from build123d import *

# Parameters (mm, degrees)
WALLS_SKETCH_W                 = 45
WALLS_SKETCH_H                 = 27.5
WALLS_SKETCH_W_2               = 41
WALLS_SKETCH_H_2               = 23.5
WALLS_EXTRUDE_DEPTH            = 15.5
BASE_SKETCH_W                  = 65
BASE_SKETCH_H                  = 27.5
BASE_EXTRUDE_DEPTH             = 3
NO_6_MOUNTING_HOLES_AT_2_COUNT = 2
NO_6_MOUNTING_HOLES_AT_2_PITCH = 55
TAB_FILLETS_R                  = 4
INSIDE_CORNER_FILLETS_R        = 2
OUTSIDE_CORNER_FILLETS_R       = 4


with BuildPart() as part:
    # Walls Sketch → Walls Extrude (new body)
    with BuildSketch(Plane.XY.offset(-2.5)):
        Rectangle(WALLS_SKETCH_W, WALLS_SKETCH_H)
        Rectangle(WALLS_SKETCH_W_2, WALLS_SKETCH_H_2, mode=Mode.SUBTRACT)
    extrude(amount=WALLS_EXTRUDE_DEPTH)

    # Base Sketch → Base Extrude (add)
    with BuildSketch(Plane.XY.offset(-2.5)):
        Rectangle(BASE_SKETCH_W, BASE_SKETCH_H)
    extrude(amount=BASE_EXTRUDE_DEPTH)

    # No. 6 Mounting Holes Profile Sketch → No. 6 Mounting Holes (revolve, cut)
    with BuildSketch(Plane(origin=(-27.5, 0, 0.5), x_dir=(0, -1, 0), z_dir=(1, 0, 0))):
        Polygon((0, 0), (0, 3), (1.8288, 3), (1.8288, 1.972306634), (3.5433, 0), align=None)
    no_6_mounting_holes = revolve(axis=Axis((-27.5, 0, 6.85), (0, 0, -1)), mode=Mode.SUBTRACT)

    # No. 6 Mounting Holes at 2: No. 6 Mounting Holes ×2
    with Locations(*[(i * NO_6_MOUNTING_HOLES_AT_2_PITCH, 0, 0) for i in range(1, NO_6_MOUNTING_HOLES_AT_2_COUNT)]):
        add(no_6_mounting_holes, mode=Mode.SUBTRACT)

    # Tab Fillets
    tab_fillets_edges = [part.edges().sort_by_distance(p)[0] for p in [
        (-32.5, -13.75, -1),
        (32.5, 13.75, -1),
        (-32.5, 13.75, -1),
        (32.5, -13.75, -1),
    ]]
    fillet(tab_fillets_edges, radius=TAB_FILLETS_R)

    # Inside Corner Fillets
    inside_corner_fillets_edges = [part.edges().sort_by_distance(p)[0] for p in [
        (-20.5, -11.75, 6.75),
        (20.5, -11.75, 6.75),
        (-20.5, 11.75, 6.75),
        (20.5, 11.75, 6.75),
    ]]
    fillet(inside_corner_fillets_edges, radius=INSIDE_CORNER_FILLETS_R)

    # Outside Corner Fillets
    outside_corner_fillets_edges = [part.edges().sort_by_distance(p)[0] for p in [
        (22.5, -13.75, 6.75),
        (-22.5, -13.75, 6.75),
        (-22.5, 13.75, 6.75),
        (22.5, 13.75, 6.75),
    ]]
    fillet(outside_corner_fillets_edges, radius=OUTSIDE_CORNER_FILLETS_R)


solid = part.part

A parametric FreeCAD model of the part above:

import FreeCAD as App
import Part
import Sketcher
Q = App.Units.Quantity


def edges_at(feature, points):
    """Names of the edges that pass closest to the given points."""
    edges = feature.Shape.Edges
    near = lambda p: min(range(len(edges)), key=lambda i: edges[i].distToShape(Part.Vertex(*p))[0])
    return sorted({f"Edge{near(p) + 1}" for p in points})

doc = App.newDocument("Part")
params = doc.addObject("Spreadsheet::Sheet", "Params")
for row, (alias, value) in enumerate([
    ("sketch1_width", "45 mm"),
    ("sketch1_width2", "41 mm"),
    ("sketch1_height", "27.5 mm"),
    ("sketch1_height2", "23.5 mm"),
    ("pad1_length", "15.5 mm"),
    ("sketch2_width", "65 mm"),
    ("sketch2_height", "27.5 mm"),
    ("pad2_length", "3 mm"),
    ("sketch3_height", "3 mm"),
    ("groove_angle", "360 deg"),
    ("linearpattern_pitch", "55 mm"),
    ("fillet_radius", "4 mm"),
    ("fillet2_radius", "2 mm"),
    ("fillet3_radius", "4 mm"),
], start=1):
    params.set(f"A{row}", alias)
    params.set(f"B{row}", "=" + value)
    params.setAlias(f"B{row}", alias)

body = doc.addObject("PartDesign::Body", "Body")

# Sketch on XY plane
sketch1 = doc.addObject("Sketcher::SketchObject", "Sketch")
body.addObject(sketch1)
sketch1.AttachmentSupport = (doc.XY_Plane, [""])
sketch1.MapMode = "FlatFace"
sketch1.AttachmentOffset = App.Placement(App.Vector(0, 0, -2.5), App.Rotation())
sketch1.addGeometry([
    Part.LineSegment(App.Vector(-22, 14, 0), App.Vector(-22, -14, 0)),  # 0
    Part.LineSegment(App.Vector(-22, -14, 0), App.Vector(22, -14, 0)),  # 1
    Part.LineSegment(App.Vector(22, -14, 0), App.Vector(22, 14, 0)),  # 2
    Part.LineSegment(App.Vector(22, 14, 0), App.Vector(-22, 14, 0)),  # 3
    Part.LineSegment(App.Vector(20, -12, 0), App.Vector(-20, -12, 0)),  # 4
    Part.LineSegment(App.Vector(-20, -12, 0), App.Vector(-20, 12, 0)),  # 5
    Part.LineSegment(App.Vector(-20, 12, 0), App.Vector(20, 12, 0)),  # 6
    Part.LineSegment(App.Vector(20, 12, 0), App.Vector(20, -12, 0)),  # 7
], False)
sketch1.addConstraint([
    Sketcher.Constraint("Coincident", 0, 2, 1, 1),
    Sketcher.Constraint("Coincident", 1, 2, 2, 1),
    Sketcher.Constraint("Coincident", 2, 2, 3, 1),
    Sketcher.Constraint("Coincident", 3, 2, 0, 1),
    Sketcher.Constraint("Coincident", 4, 2, 5, 1),
    Sketcher.Constraint("Coincident", 5, 2, 6, 1),
    Sketcher.Constraint("Coincident", 6, 2, 7, 1),
    Sketcher.Constraint("Coincident", 7, 2, 4, 1),
    Sketcher.Constraint("Vertical", 0),
    Sketcher.Constraint("Horizontal", 1),
    Sketcher.Constraint("Vertical", 2),
    Sketcher.Constraint("Horizontal", 3),
    Sketcher.Constraint("Horizontal", 4),
    Sketcher.Constraint("Vertical", 5),
    Sketcher.Constraint("Horizontal", 6),
    Sketcher.Constraint("Vertical", 7),
    Sketcher.Constraint("Symmetric", 0, 2, 2, 2, -1, 1),
    Sketcher.Constraint("Symmetric", 4, 2, 6, 2, -1, 1),
    Sketcher.Constraint("DistanceX", 1, 1, 1, 2, 45.0),
    Sketcher.Constraint("DistanceX", 4, 2, 4, 1, 41.0),
    Sketcher.Constraint("DistanceY", 0, 2, 0, 1, 27.5),
    Sketcher.Constraint("DistanceY", 5, 1, 5, 2, 23.5),
])
sketch1.setExpression("Constraints[18]", "Params.sketch1_width")
sketch1.setExpression("Constraints[19]", "Params.sketch1_width2")
sketch1.setExpression("Constraints[20]", "Params.sketch1_height")
sketch1.setExpression("Constraints[21]", "Params.sketch1_height2")
pad1 = doc.addObject("PartDesign::Pad", "Pad")
body.addObject(pad1)
pad1.Profile = sketch1
pad1.setExpression("Length", "Params.pad1_length")

# Sketch on XY plane
sketch2 = doc.addObject("Sketcher::SketchObject", "Sketch001")
body.addObject(sketch2)
sketch2.AttachmentSupport = (doc.XY_Plane, [""])
sketch2.MapMode = "FlatFace"
sketch2.AttachmentOffset = App.Placement(App.Vector(0, 0, -2.5), App.Rotation())
sketch2.addGeometry([
    Part.LineSegment(App.Vector(-32, 14, 0), App.Vector(-32, -14, 0)),
    Part.LineSegment(App.Vector(-32, -14, 0), App.Vector(32, -14, 0)),
    Part.LineSegment(App.Vector(32, -14, 0), App.Vector(32, 14, 0)),
    Part.LineSegment(App.Vector(32, 14, 0), App.Vector(-32, 14, 0)),
], False)
sketch2.addConstraint([
    Sketcher.Constraint("Coincident", 0, 2, 1, 1),
    Sketcher.Constraint("Coincident", 1, 2, 2, 1),
    Sketcher.Constraint("Coincident", 2, 2, 3, 1),
    Sketcher.Constraint("Coincident", 3, 2, 0, 1),
    Sketcher.Constraint("Vertical", 0),
    Sketcher.Constraint("Horizontal", 1),
    Sketcher.Constraint("Vertical", 2),
    Sketcher.Constraint("Horizontal", 3),
    Sketcher.Constraint("Symmetric", 0, 2, 2, 2, -1, 1),
    Sketcher.Constraint("DistanceX", 1, 1, 1, 2, 65.0),
    Sketcher.Constraint("DistanceY", 0, 2, 0, 1, 27.5),
])
sketch2.setExpression("Constraints[9]", "Params.sketch2_width")
sketch2.setExpression("Constraints[10]", "Params.sketch2_height")
pad2 = doc.addObject("PartDesign::Pad", "Pad001")
body.addObject(pad2)
pad2.Profile = sketch2
pad2.setExpression("Length", "Params.pad2_length")

# Sketch on YZ plane
sketch3 = doc.addObject("Sketcher::SketchObject", "Sketch002")
body.addObject(sketch3)
sketch3.AttachmentSupport = (doc.YZ_Plane, [""])
sketch3.MapMode = "FlatFace"
sketch3.AttachmentOffset = App.Placement(App.Vector(0, 0, -27.5), App.Rotation())
sketch3.addGeometry([
    Part.LineSegment(App.Vector(0, -2.5, 0), App.Vector(0, 0.5, 0)),  # 0
    Part.LineSegment(App.Vector(0, 0.5, 0), App.Vector(-3.5, 0.5, 0)),  # 1
    Part.LineSegment(App.Vector(-3.5, 0.5, 0), App.Vector(-1.8, -1.5, 0)),  # 2
    Part.LineSegment(App.Vector(-1.8, -1.5, 0), App.Vector(-1.8, -2.5, 0)),  # 3
    Part.LineSegment(App.Vector(-1.8, -2.5, 0), App.Vector(0, -2.5, 0)),  # 4
], False)
sketch3.addConstraint([
    Sketcher.Constraint("Coincident", 0, 2, 1, 1),
    Sketcher.Constraint("Coincident", 1, 2, 2, 1),
    Sketcher.Constraint("Coincident", 2, 2, 3, 1),
    Sketcher.Constraint("Coincident", 3, 2, 4, 1),
    Sketcher.Constraint("Coincident", 4, 2, 0, 1),
    Sketcher.Constraint("Vertical", 0),
    Sketcher.Constraint("Horizontal", 1),
    Sketcher.Constraint("Vertical", 3),
    Sketcher.Constraint("Horizontal", 4),
    Sketcher.Constraint("PointOnObject", 0, 2, -2),
    Sketcher.Constraint("DistanceY", 0, 1, 0, 2, 3.0),
    Sketcher.Constraint("Angle", 2, Q("-49 deg")),
    Sketcher.Constraint("DistanceY", -1, 1, 0, 2, 0.5),
    Sketcher.Constraint("DistanceX", 1, 2, 1, 1, 3.5433),
    Sketcher.Constraint("DistanceX", 4, 1, 4, 2, 1.8288),
])
sketch3.setExpression("Constraints[10]", "Params.sketch3_height")
groove = doc.addObject("PartDesign::Groove", "Groove")
body.addObject(groove)
groove.Profile = sketch3
groove.ReferenceAxis = (sketch3, ["V_Axis"])
groove.setExpression("Angle", "Params.groove_angle")
doc.recompute()

linearpattern = doc.addObject("PartDesign::LinearPattern", "LinearPattern")
body.addObject(linearpattern)
linearpattern.Originals = [groove]
linearpattern.Direction = (doc.X_Axis, [""])
linearpattern.Mode = "offset"
linearpattern.setExpression("Offset", "Params.linearpattern_pitch")
linearpattern.Occurrences = 2
body.Tip = linearpattern
doc.recompute()

fillet = doc.addObject("PartDesign::Fillet", "Fillet")
body.addObject(fillet)
fillet.Base = (linearpattern, edges_at(linearpattern, [
    (-32.5, -13.75, -1),
    (32.5, 13.75, -1),
    (-32.5, 13.75, -1),
    (32.5, -13.75, -1),
]))
fillet.setExpression("Radius", "Params.fillet_radius")
doc.recompute()

fillet2 = doc.addObject("PartDesign::Fillet", "Fillet001")
body.addObject(fillet2)
fillet2.Base = (fillet, edges_at(fillet, [
    (-20.5, -11.75, 6.75),
    (20.5, -11.75, 6.75),
    (-20.5, 11.75, 6.75),
    (20.5, 11.75, 6.75),
]))
fillet2.setExpression("Radius", "Params.fillet2_radius")
doc.recompute()

fillet3 = doc.addObject("PartDesign::Fillet", "Fillet002")
body.addObject(fillet3)
fillet3.Base = (fillet2, edges_at(fillet2, [
    (22.5, -13.75, 6.75),
    (-22.5, -13.75, 6.75),
    (-22.5, 13.75, 6.75),
    (22.5, 13.75, 6.75),
]))
fillet3.setExpression("Radius", "Params.fillet3_radius")

doc.recompute()
